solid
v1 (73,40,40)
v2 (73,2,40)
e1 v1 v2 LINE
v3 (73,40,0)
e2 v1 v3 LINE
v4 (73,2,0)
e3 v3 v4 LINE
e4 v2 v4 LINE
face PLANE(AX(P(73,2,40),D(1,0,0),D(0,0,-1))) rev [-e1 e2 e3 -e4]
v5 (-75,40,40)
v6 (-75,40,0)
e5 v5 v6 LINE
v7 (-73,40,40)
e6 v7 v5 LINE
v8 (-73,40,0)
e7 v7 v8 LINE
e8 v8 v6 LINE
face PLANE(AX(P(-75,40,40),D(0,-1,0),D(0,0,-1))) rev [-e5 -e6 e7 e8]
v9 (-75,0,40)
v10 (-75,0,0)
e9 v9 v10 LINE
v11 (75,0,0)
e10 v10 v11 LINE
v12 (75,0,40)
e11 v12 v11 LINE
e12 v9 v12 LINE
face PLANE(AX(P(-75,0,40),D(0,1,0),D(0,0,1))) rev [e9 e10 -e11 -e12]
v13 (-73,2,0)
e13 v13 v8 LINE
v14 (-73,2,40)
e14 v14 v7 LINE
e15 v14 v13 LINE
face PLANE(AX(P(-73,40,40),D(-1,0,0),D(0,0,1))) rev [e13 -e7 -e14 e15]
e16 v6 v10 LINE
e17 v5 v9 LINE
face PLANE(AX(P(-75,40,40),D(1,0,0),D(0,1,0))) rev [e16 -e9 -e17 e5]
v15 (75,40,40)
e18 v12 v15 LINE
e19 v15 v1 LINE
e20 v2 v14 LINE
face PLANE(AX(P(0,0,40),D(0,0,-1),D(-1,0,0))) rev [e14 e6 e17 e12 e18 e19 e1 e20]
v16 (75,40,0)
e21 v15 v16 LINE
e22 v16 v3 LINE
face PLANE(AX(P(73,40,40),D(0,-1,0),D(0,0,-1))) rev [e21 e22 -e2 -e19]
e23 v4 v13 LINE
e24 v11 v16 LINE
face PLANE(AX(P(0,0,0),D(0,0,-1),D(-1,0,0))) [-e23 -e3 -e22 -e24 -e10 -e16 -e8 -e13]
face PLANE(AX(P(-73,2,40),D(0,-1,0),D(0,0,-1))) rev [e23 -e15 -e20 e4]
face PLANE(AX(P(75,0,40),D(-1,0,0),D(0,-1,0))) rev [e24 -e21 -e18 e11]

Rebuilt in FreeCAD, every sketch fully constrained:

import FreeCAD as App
import Part
import Sketcher
from FreeCAD import Vector

doc = App.newDocument("Part")
body = doc.addObject("PartDesign::Body", "Body")

sketch1 = doc.addObject("Sketcher::SketchObject", "Sketch")
body.addObject(sketch1)
sketch1.AttachmentSupport = (doc.XY_Plane, [""])
sketch1.MapMode = "FlatFace"
sketch1.addGeometry([
    Part.LineSegment(Vector(-75, 40, 0), Vector(-75, 0, 0)),
    Part.LineSegment(Vector(-75, 0, 0), Vector(75, 0, 0)),
    Part.LineSegment(Vector(75, 0, 0), Vector(75, 40, 0)),
    Part.LineSegment(Vector(75, 40, 0), Vector(73, 40, 0)),
    Part.LineSegment(Vector(73, 40, 0), Vector(73, 2, 0)),
    Part.LineSegment(Vector(73, 2, 0), Vector(-73, 2, 0)),
    Part.LineSegment(Vector(-73, 2, 0), Vector(-73, 40, 0)),
    Part.LineSegment(Vector(-73, 40, 0), Vector(-75, 40, 0)),
], False)
sketch1.addConstraint([
    Sketcher.Constraint("Coincident", 0, 2, 1, 1),
    Sketcher.Constraint("Coincident", 1, 2, 2, 1),
    Sketcher.Constraint("Coincident", 2, 2, 3, 1),
    Sketcher.Constraint("Coincident", 3, 2, 4, 1),
    Sketcher.Constraint("Coincident", 4, 2, 5, 1),
    Sketcher.Constraint("Coincident", 5, 2, 6, 1),
    Sketcher.Constraint("Coincident", 6, 2, 7, 1),
    Sketcher.Constraint("Coincident", 7, 2, 0, 1),
    Sketcher.Constraint("Vertical", 0),
    Sketcher.Constraint("Horizontal", 1),
    Sketcher.Constraint("Vertical", 2),
    Sketcher.Constraint("Horizontal", 3),
    Sketcher.Constraint("Vertical", 4),
    Sketcher.Constraint("Horizontal", 5),
    Sketcher.Constraint("Vertical", 6),
    Sketcher.Constraint("Horizontal", 7),
    Sketcher.Constraint("Symmetric", 0, 2, 1, 2, -1, 1),
    Sketcher.Constraint("Symmetric", 3, 2, 6, 2, -2),
    Sketcher.Constraint("DistanceX", 1, 1, 1, 2, 150.0),
    Sketcher.Constraint("DistanceX", 3, 2, 3, 1, 2.0),
    Sketcher.Constraint("DistanceY", 0, 2, 0, 1, 40.0),
    Sketcher.Constraint("DistanceY", 4, 2, 4, 1, 38.0),
])
pad1 = doc.addObject("PartDesign::Pad", "Pad")
body.addObject(pad1)
pad1.Profile = sketch1
pad1.Length = 40

doc.recompute()
